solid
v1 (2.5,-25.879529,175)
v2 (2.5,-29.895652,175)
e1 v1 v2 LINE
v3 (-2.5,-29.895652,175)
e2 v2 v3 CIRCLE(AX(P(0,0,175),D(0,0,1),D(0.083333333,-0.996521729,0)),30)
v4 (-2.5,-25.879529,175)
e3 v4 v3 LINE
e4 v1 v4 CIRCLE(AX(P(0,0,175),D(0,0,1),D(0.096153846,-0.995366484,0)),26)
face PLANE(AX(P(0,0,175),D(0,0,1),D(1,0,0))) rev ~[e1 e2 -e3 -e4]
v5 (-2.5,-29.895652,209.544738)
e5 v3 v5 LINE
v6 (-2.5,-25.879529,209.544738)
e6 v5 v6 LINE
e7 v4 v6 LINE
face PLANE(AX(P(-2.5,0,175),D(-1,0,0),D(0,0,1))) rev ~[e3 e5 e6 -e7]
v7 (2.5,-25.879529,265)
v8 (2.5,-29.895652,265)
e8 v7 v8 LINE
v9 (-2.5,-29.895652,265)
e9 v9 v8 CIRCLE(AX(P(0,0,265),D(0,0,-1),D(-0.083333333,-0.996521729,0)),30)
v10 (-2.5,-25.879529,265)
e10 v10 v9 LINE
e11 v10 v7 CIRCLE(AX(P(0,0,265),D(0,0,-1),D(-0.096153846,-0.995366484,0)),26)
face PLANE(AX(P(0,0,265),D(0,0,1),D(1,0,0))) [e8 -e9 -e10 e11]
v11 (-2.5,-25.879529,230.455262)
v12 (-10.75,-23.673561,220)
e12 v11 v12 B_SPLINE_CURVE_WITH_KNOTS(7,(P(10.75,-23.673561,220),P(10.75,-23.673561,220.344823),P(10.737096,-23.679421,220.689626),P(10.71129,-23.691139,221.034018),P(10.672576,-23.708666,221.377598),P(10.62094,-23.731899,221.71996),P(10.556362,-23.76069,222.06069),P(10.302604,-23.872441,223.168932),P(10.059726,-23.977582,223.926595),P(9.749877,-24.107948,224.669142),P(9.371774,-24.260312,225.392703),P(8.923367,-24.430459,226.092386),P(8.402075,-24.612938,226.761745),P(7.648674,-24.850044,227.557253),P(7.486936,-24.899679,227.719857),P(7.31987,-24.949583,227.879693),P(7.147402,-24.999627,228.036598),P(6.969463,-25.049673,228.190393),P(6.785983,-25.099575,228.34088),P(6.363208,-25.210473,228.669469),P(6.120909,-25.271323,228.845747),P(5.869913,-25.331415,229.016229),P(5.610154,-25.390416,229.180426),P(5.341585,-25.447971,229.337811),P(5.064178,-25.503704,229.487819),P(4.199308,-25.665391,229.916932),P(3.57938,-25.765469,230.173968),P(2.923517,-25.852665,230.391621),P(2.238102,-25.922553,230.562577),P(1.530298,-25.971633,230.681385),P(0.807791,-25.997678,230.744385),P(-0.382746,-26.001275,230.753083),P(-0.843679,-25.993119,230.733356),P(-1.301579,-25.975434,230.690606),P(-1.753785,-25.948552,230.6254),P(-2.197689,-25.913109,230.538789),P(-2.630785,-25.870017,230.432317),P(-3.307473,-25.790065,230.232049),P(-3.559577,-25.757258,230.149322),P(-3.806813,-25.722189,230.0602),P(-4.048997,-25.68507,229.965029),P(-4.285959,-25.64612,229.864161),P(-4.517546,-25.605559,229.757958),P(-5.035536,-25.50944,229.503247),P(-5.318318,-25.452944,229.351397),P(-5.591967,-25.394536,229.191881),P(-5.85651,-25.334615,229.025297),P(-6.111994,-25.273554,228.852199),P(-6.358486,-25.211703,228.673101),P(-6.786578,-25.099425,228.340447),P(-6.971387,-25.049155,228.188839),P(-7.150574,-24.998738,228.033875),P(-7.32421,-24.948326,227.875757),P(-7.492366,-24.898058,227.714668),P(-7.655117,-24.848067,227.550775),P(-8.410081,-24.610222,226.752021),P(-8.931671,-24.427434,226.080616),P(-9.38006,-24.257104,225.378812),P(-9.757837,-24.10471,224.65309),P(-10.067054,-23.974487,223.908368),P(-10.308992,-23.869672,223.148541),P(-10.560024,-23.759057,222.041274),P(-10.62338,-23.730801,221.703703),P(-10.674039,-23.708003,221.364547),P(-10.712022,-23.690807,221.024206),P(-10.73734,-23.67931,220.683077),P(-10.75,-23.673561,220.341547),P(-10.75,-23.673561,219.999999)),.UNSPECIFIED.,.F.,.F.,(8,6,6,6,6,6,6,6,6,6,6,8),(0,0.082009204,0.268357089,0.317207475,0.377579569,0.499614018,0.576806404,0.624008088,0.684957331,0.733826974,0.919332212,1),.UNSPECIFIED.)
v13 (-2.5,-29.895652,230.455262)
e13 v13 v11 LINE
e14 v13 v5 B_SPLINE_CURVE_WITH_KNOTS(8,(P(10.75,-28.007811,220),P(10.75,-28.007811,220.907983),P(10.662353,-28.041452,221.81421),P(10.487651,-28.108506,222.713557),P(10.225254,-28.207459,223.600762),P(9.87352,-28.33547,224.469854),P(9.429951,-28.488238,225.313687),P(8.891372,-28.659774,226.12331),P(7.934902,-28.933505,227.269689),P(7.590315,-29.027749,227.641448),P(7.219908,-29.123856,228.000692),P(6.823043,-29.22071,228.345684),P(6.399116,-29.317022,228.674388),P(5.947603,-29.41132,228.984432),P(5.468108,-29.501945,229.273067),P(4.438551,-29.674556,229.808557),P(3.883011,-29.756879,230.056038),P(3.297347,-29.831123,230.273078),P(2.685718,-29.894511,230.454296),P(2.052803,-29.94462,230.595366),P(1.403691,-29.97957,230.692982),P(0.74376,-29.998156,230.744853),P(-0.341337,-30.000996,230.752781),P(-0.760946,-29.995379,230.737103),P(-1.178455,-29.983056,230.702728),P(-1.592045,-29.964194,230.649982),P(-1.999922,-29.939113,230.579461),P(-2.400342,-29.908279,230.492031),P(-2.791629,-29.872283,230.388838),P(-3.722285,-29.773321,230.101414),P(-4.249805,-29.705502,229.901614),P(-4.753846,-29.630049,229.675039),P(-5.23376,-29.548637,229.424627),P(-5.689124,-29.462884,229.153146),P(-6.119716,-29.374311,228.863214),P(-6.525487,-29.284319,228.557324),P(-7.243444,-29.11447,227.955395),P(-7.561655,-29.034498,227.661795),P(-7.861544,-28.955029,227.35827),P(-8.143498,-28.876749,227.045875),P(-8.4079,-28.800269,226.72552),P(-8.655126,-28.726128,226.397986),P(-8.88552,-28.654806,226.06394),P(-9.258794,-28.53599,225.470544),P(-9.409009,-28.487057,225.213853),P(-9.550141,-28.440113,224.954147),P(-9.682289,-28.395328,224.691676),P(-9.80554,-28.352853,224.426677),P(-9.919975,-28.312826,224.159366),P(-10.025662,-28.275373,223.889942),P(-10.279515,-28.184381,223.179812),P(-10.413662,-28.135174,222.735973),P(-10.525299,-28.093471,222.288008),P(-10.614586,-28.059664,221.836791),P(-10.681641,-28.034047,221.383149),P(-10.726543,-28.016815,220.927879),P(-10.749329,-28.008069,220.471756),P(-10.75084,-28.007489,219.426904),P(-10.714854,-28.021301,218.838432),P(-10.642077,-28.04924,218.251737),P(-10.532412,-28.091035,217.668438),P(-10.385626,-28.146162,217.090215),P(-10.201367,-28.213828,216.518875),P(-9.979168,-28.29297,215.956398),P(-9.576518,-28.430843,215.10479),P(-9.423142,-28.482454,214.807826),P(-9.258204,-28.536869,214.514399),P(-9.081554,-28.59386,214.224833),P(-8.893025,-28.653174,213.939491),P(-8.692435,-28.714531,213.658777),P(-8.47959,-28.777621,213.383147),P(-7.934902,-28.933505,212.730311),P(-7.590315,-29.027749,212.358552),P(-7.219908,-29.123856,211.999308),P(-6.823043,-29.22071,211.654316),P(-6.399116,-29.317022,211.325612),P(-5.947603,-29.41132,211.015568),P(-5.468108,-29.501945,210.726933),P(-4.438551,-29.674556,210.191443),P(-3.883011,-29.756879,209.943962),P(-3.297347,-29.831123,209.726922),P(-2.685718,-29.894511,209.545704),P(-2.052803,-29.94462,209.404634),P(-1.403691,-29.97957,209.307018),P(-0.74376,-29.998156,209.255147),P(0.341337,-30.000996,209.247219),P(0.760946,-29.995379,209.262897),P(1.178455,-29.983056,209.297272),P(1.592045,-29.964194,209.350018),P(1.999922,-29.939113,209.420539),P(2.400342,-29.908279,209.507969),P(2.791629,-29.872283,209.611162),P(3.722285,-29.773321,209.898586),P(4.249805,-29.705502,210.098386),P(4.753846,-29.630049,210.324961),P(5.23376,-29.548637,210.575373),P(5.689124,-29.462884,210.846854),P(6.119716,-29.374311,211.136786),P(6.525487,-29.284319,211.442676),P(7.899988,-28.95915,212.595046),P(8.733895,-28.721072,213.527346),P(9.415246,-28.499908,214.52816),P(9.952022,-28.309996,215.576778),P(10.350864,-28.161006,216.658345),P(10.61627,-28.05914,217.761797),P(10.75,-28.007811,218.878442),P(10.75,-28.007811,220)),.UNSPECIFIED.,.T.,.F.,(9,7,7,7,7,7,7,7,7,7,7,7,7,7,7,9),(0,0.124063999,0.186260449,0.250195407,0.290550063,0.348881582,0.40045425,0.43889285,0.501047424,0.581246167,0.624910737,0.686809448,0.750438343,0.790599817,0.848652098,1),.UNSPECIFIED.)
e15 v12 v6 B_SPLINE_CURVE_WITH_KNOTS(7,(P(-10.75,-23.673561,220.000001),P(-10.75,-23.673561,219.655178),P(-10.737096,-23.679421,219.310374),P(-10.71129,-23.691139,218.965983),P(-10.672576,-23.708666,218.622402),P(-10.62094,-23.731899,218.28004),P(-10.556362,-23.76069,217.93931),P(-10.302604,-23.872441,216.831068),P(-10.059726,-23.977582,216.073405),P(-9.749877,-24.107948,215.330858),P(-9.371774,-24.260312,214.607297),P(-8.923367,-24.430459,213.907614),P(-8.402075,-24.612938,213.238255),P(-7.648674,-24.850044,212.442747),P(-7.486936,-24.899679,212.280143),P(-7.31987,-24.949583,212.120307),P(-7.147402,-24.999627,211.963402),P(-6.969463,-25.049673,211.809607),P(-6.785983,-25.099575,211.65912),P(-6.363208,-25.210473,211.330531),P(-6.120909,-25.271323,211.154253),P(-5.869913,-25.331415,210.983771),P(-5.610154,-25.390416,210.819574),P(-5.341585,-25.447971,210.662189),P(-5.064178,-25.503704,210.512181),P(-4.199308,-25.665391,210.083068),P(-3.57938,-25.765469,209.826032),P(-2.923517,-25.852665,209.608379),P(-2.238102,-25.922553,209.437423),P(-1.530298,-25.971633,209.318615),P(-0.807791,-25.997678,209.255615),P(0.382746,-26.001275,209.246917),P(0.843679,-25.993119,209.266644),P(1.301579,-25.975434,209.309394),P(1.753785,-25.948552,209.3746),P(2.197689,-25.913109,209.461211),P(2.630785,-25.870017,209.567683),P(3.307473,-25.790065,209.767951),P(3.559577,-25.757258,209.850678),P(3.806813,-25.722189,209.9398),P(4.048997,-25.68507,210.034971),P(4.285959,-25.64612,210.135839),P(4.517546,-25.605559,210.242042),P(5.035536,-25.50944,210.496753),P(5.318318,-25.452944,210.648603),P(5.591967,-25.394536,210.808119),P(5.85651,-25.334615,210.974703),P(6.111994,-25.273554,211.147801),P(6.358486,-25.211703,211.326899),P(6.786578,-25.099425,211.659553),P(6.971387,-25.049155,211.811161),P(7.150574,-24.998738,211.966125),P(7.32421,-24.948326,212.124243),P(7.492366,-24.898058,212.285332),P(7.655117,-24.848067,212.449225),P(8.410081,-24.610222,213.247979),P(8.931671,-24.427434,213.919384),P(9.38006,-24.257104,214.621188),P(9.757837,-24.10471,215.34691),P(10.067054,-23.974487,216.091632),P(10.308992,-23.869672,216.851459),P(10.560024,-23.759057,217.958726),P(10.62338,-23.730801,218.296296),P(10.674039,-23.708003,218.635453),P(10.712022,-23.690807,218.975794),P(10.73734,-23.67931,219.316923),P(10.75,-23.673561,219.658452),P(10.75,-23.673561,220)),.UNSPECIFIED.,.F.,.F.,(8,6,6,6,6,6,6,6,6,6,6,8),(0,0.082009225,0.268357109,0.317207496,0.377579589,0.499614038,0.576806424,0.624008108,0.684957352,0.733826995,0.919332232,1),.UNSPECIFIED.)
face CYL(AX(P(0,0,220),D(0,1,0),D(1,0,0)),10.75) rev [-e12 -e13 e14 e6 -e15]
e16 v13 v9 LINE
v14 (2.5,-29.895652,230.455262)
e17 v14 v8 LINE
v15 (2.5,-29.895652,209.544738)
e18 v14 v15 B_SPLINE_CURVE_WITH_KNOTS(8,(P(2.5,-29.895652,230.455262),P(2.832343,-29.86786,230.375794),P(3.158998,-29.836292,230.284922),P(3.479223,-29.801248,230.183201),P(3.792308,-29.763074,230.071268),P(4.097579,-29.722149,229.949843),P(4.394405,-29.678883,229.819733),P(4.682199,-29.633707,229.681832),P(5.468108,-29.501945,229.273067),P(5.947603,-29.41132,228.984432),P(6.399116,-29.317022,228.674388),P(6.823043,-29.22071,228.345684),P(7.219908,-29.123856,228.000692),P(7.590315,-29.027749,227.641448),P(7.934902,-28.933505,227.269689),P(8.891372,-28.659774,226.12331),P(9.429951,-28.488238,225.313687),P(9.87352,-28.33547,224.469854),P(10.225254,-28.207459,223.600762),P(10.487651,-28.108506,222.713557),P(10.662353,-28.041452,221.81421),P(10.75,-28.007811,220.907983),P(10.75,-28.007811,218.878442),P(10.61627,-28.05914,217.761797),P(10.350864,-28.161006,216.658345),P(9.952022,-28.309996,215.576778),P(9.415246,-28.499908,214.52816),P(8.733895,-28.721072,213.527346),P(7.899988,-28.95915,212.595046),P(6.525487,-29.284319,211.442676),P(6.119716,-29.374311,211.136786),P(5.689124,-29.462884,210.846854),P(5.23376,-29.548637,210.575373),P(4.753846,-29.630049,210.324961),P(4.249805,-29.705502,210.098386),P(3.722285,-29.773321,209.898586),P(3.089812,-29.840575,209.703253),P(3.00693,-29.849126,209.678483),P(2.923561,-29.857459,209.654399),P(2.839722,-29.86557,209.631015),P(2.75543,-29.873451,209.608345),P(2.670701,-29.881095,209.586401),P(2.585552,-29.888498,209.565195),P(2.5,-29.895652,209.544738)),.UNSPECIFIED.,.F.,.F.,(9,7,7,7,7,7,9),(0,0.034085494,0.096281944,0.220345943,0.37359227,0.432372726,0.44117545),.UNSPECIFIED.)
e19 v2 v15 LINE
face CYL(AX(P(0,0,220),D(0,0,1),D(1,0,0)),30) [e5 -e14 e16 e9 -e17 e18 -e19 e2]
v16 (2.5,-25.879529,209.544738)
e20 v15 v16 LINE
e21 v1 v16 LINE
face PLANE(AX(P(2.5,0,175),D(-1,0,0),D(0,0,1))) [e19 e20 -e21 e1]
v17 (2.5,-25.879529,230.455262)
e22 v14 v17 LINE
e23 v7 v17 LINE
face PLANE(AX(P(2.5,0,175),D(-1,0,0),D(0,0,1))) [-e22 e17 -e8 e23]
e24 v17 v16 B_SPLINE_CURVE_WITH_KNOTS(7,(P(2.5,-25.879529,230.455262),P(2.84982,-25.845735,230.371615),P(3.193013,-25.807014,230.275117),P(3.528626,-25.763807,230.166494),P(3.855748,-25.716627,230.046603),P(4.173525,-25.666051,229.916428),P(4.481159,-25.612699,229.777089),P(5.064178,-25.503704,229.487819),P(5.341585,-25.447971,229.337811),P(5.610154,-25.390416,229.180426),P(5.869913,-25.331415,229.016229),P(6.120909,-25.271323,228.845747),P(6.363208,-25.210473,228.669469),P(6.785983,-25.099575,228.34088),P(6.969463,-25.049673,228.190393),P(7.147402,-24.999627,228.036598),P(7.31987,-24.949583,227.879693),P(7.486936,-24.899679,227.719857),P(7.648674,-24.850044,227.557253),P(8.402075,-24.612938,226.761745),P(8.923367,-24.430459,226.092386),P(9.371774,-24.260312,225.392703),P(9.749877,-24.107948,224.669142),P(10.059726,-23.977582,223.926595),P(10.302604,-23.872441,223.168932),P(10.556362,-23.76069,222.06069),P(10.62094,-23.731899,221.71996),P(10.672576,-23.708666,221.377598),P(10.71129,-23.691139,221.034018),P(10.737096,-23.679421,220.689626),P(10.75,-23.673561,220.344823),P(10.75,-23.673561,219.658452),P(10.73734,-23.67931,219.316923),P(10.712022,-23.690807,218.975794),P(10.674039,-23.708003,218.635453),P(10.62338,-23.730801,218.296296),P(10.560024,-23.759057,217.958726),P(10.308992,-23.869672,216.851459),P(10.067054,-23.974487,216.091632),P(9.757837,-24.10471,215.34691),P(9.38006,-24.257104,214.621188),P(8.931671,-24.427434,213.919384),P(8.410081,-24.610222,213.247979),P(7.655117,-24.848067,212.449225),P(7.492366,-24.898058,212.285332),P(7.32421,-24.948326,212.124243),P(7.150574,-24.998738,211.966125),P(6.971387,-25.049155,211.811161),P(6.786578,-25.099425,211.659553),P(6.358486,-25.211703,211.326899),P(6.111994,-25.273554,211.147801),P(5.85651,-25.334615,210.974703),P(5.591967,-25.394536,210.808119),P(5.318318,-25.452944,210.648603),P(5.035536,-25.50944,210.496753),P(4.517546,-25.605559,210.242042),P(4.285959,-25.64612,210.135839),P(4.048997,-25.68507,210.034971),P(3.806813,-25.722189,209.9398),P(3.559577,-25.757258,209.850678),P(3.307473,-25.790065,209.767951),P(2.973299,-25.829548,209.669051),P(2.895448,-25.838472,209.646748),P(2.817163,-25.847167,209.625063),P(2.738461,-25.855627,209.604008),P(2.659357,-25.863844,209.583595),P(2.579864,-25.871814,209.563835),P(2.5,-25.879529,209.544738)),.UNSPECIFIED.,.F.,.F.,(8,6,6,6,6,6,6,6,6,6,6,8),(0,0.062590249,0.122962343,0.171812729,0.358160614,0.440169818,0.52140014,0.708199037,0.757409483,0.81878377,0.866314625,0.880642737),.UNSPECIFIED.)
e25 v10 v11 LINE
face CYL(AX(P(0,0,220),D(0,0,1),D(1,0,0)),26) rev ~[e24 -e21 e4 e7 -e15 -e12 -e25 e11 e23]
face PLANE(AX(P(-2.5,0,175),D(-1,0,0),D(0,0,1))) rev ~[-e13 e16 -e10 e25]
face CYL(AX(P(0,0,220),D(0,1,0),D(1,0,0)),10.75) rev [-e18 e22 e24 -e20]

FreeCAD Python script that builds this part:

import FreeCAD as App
import Part
import Sketcher
from FreeCAD import Vector


def add_polygon(sketch, points):
    """Adds a closed chain of lines whose ends are joined by coincident constraints."""
    first, n = sketch.GeometryCount, len(points)
    for a, b in zip(points, points[1:] + points[:1]):
        sketch.addGeometry(Part.LineSegment(App.Vector(*a, 0), App.Vector(*b, 0)), False)
    for i in range(n):
        sketch.addConstraint(Sketcher.Constraint("Coincident", first + i, 2, first + (i + 1) % n, 1))

doc = App.newDocument("Part")
body = doc.addObject("PartDesign::Body", "Body")

# Sketch on XY plane
sketch1 = doc.addObject("Sketcher::SketchObject", "Sketch")
body.addObject(sketch1)
sketch1.AttachmentSupport = (doc.XY_Plane, [""])
sketch1.MapMode = "FlatFace"
sketch1.addGeometry(Part.Circle(Vector(0, 0, 0), Vector(0, 0, 1), 30), False)
sketch1.addGeometry(Part.Circle(Vector(0, 0, 0), Vector(0, 0, 1), 26), False)
sketch1.addConstraint(Sketcher.Constraint("Coincident", 0, 3, -1, 1))
sketch1.addConstraint(Sketcher.Constraint("Coincident", 1, 3, -1, 1))
sketch1.addConstraint(Sketcher.Constraint("Diameter", 0, 60.0))
sketch1.addConstraint(Sketcher.Constraint("Diameter", 1, 52.0))
pad1 = doc.addObject("PartDesign::Pad", "Pad")
body.addObject(pad1)
pad1.Profile = sketch1
pad1.Type = "TwoLengths"
pad1.Length = 45
pad1.Length2 = 45

# Sketch on XZ plane
sketch2 = doc.addObject("Sketcher::SketchObject", "Sketch001")
body.addObject(sketch2)
sketch2.AttachmentSupport = (doc.XZ_Plane, [""])
sketch2.MapMode = "FlatFace"
sketch2.addGeometry(Part.Circle(Vector(0, 0, 0), Vector(0, 0, 1), 11), False)
sketch2.addConstraint(Sketcher.Constraint("Coincident", 0, 3, -1, 1))
sketch2.addConstraint(Sketcher.Constraint("Diameter", 0, 21.5))
pocket1 = doc.addObject("PartDesign::Pocket", "Pocket")
body.addObject(pocket1)
pocket1.Profile = sketch2
pocket1.Type = "ThroughAll"
pocket1.Reversed = True

# Sketch on XZ plane
sketch3 = doc.addObject("Sketcher::SketchObject", "Sketch002")
body.addObject(sketch3)
sketch3.AttachmentSupport = (doc.XZ_Plane, [""])
sketch3.MapMode = "FlatFace"
add_polygon(sketch3, [(-2, 45), (-2, -45), (2, -45), (2, 45)])  # lines 0-3
sketch3.addConstraint(Sketcher.Constraint("Vertical", 0))
sketch3.addConstraint(Sketcher.Constraint("Horizontal", 1))
sketch3.addConstraint(Sketcher.Constraint("Vertical", 2))
sketch3.addConstraint(Sketcher.Constraint("Horizontal", 3))
sketch3.addConstraint(Sketcher.Constraint("Symmetric", 0, 2, 2, 2, -1, 1))
sketch3.addConstraint(Sketcher.Constraint("DistanceX", 1, 1, 1, 2, 5.0))
sketch3.addConstraint(Sketcher.Constraint("DistanceY", 0, 2, 0, 1, 90.0))
pocket2 = doc.addObject("PartDesign::Pocket", "Pocket001")
body.addObject(pocket2)
pocket2.Profile = sketch3
pocket2.Type = "ThroughAll"
pocket2.Reversed = True
body2 = doc.addObject("PartDesign::Body", "Body001")
doc.recompute()

body.Placement = App.Placement(Vector(0, 0, 220), App.Rotation(Vector(0, 0, 1), 0))
boolean = doc.addObject("PartDesign::Boolean", "Boolean")
body2.addObject(boolean)
boolean.Type = "Fuse"
boolean.addObjects([body])

doc.recompute()
